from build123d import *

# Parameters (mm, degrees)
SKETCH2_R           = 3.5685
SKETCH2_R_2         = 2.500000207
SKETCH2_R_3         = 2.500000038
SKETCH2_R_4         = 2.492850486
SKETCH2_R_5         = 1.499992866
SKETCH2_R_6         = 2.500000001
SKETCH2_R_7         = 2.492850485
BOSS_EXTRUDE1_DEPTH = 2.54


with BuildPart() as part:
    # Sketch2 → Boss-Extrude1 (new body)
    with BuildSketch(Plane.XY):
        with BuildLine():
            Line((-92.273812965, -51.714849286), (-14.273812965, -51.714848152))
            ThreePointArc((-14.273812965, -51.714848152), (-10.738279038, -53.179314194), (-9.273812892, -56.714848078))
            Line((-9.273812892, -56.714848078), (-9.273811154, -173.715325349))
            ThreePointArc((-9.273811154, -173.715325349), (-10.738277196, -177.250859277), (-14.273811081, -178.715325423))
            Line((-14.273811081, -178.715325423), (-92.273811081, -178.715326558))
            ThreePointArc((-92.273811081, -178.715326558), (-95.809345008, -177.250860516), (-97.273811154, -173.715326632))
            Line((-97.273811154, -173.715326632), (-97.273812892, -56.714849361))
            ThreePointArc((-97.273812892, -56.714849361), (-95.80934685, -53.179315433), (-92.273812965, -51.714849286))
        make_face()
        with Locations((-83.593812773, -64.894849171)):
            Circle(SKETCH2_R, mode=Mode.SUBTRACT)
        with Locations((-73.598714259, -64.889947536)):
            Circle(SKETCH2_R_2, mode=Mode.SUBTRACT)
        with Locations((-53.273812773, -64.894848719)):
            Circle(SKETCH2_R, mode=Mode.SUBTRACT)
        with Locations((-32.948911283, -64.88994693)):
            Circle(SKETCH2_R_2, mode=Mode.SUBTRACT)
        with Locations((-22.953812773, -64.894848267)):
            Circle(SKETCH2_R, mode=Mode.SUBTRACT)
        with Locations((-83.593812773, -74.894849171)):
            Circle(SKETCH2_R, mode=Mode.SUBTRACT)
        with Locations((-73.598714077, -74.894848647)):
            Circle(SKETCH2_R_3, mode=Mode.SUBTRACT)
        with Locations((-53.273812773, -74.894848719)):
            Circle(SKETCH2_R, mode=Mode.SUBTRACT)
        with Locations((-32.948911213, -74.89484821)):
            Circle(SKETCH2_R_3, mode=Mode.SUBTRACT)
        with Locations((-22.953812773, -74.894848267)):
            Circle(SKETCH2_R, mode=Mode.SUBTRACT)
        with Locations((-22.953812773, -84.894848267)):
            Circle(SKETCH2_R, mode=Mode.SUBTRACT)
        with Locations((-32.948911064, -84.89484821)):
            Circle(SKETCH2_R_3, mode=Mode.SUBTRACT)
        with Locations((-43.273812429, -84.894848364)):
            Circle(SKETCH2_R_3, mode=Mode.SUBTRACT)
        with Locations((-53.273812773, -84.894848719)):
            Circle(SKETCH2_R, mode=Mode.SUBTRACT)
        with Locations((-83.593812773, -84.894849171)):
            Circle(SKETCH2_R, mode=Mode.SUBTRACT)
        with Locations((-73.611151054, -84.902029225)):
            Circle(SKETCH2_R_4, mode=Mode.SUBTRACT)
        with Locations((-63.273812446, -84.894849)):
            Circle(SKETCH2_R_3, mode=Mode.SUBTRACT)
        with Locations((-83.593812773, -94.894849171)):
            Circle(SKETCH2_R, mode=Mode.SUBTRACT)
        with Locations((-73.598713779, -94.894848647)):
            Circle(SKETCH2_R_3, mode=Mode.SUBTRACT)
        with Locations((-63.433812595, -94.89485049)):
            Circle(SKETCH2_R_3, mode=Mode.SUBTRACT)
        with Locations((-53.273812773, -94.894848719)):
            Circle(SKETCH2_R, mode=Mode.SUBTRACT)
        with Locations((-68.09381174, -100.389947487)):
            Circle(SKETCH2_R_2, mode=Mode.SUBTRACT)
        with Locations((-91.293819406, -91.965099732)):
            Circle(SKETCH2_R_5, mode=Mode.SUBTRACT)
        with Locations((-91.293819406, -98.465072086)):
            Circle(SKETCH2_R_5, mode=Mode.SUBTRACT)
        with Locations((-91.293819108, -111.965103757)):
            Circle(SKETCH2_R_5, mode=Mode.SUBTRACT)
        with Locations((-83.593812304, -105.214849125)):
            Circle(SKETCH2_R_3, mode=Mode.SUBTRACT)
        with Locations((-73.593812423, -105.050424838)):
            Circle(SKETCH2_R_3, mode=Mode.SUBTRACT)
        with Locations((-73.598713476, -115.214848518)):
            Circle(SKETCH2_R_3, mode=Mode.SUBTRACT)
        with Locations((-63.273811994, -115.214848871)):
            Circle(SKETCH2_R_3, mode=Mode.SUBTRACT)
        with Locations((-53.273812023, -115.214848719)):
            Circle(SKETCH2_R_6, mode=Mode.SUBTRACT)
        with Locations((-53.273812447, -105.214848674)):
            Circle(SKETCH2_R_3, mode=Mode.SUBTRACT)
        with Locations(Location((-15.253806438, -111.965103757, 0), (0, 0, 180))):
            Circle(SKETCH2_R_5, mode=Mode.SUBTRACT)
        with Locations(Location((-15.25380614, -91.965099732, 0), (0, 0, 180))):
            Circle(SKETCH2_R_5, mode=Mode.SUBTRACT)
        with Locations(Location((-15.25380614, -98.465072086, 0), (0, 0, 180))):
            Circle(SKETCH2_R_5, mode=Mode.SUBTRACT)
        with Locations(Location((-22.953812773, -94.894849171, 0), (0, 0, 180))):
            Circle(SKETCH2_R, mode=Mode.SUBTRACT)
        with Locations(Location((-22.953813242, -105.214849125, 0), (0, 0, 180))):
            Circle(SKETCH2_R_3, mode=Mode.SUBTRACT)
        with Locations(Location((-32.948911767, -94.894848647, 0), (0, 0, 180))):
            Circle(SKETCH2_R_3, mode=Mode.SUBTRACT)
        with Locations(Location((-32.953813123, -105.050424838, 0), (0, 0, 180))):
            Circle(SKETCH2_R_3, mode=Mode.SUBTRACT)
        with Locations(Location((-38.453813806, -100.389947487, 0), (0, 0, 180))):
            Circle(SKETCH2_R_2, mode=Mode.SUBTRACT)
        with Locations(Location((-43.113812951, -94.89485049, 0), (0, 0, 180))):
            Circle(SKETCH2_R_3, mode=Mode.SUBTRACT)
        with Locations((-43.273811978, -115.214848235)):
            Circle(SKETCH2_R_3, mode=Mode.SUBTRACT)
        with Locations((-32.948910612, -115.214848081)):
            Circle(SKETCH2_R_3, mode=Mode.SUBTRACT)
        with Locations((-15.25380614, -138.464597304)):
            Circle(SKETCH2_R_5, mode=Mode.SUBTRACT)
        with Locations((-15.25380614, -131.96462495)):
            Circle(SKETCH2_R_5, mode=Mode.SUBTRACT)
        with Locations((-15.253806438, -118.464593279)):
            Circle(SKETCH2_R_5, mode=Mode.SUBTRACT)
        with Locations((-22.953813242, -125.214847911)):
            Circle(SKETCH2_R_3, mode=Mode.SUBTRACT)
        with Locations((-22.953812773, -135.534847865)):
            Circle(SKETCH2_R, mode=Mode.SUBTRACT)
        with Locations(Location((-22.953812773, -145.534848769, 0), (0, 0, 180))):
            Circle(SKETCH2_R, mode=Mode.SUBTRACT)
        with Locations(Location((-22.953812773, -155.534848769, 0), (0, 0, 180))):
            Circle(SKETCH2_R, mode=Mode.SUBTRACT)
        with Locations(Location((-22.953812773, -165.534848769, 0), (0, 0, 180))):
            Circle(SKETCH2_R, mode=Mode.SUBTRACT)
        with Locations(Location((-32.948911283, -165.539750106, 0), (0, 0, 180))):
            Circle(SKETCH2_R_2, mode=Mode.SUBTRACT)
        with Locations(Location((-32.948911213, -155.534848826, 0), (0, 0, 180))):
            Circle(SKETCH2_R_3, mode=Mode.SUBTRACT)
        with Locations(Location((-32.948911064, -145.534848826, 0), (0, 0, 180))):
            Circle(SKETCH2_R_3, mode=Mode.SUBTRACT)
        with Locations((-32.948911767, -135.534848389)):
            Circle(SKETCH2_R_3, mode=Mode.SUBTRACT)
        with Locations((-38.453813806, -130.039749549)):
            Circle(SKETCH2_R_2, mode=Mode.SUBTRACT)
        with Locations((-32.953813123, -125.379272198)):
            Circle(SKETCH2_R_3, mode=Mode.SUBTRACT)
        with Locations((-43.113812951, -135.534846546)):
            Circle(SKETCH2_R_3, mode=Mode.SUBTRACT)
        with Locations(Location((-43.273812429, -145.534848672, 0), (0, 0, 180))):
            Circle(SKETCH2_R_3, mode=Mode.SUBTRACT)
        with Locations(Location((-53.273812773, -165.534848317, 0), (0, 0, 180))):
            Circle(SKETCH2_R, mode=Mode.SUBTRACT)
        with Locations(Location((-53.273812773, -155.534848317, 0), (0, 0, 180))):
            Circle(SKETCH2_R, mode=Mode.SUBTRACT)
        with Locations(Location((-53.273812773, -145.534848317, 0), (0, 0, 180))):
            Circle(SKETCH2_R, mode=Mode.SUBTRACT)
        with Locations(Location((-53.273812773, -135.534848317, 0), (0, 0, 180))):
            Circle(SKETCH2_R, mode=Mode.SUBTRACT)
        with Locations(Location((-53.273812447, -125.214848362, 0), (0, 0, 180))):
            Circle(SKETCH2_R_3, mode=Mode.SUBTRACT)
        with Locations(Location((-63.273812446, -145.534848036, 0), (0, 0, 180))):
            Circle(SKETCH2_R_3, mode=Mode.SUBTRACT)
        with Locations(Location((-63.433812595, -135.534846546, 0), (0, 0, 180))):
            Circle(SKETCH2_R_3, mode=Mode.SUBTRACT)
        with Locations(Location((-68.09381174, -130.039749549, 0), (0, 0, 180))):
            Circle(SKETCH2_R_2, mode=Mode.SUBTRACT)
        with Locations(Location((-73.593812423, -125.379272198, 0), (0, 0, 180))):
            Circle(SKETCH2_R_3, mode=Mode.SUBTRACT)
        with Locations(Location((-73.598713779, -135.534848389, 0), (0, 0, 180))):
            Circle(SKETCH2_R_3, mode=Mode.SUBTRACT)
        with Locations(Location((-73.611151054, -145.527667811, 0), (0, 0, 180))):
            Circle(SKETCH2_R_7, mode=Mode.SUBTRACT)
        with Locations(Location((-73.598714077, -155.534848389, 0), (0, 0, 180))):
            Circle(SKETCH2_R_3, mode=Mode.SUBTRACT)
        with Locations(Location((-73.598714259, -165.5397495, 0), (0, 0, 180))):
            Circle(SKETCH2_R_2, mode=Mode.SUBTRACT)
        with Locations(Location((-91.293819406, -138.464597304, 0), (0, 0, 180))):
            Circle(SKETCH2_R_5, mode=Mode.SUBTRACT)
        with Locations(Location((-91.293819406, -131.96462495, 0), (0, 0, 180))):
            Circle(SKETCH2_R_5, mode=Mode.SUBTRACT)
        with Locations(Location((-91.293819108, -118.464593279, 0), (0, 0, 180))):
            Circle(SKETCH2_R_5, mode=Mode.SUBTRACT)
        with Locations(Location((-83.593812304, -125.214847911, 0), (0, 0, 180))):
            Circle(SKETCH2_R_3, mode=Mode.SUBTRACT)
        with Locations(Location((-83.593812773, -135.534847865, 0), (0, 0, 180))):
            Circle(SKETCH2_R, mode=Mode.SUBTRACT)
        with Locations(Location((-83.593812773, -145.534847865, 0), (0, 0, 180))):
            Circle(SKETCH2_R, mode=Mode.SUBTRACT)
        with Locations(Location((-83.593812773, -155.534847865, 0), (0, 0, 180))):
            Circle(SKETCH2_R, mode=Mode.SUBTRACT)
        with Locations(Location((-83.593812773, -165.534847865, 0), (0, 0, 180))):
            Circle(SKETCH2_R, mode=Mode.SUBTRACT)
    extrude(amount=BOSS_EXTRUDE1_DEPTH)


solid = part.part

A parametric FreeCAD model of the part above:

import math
import FreeCAD as App
import Part
import Sketcher
Q = App.Units.Quantity

doc = App.newDocument("Part")
body = doc.addObject("PartDesign::Body", "Body")

# Sketch on XY plane
sketch1 = body.newObject("Sketcher::SketchObject", "Sketch")
sketch1.AttachmentSupport = (doc.getObject("XY_Plane"), [""])
sketch1.MapMode = "FlatFace"
sketch1.addGeometry(Part.LineSegment(App.Vector(-14.3, -51.7, 0), App.Vector(-92.3, -51.7, 0)), False)
sketch1.addGeometry(Part.ArcOfCircle(Part.Circle(App.Vector(-92.3, -56.7, 0), App.Vector(0, 0, 1), 5), math.radians(90), math.radians(180)), False)
sketch1.addGeometry(Part.LineSegment(App.Vector(-97.3, -56.7, 0), App.Vector(-97.3, -173.7, 0)), False)
sketch1.addGeometry(Part.ArcOfCircle(Part.Circle(App.Vector(-92.3, -173.7, 0), App.Vector(0, 0, 1), 5), math.radians(-180), math.radians(-90)), False)
sketch1.addGeometry(Part.LineSegment(App.Vector(-92.3, -178.7, 0), App.Vector(-14.3, -178.7, 0)), False)
sketch1.addGeometry(Part.ArcOfCircle(Part.Circle(App.Vector(-14.3, -173.7, 0), App.Vector(0, 0, 1), 5), math.radians(-90), math.radians(0)), False)
sketch1.addGeometry(Part.LineSegment(App.Vector(-9.3, -173.7, 0), App.Vector(-9.3, -56.7, 0)), False)
sketch1.addGeometry(Part.ArcOfCircle(Part.Circle(App.Vector(-14.3, -56.7, 0), App.Vector(0, 0, 1), 5), math.radians(0), math.radians(90)), False)
sketch1.addGeometry(Part.Circle(App.Vector(-23, -165.5, 0), App.Vector(0, 0, 1), 3.6), False)
sketch1.addGeometry(Part.Circle(App.Vector(-32.9, -165.5, 0), App.Vector(0, 0, 1), 2.5), False)
sketch1.addGeometry(Part.Circle(App.Vector(-23, -155.5, 0), App.Vector(0, 0, 1), 3.6), False)
sketch1.addGeometry(Part.Circle(App.Vector(-23, -145.5, 0), App.Vector(0, 0, 1), 3.6), False)
sketch1.addGeometry(Part.Circle(App.Vector(-32.9, -155.5, 0), App.Vector(0, 0, 1), 2.5), False)
sketch1.addGeometry(Part.Circle(App.Vector(-32.9, -145.5, 0), App.Vector(0, 0, 1), 2.5), False)
sketch1.addGeometry(Part.Circle(App.Vector(-43.3, -145.5, 0), App.Vector(0, 0, 1), 2.5), False)
sketch1.addGeometry(Part.Circle(App.Vector(-15.3, -138.5, 0), App.Vector(0, 0, 1), 1.5), False)
sketch1.addGeometry(Part.Circle(App.Vector(-23, -135.5, 0), App.Vector(0, 0, 1), 3.6), False)
sketch1.addGeometry(Part.Circle(App.Vector(-15.3, -132, 0), App.Vector(0, 0, 1), 1.5), False)
sketch1.addGeometry(Part.Circle(App.Vector(-32.9, -135.5, 0), App.Vector(0, 0, 1), 2.5), False)
sketch1.addGeometry(Part.Circle(App.Vector(-23, -125.2, 0), App.Vector(0, 0, 1), 2.5), False)
sketch1.addGeometry(Part.Circle(App.Vector(-15.3, -118.5, 0), App.Vector(0, 0, 1), 1.5), False)
sketch1.addGeometry(Part.Circle(App.Vector(-33, -125.4, 0), App.Vector(0, 0, 1), 2.5), False)
sketch1.addGeometry(Part.Circle(App.Vector(-43.1, -135.5, 0), App.Vector(0, 0, 1), 2.5), False)
sketch1.addGeometry(Part.Circle(App.Vector(-38.5, -130, 0), App.Vector(0, 0, 1), 2.5), False)
sketch1.addGeometry(Part.Circle(App.Vector(-53.3, -125.2, 0), App.Vector(0, 0, 1), 2.5), False)
sketch1.addGeometry(Part.Circle(App.Vector(-53.3, -115.2, 0), App.Vector(0, 0, 1), 2.5), False)
sketch1.addGeometry(Part.Circle(App.Vector(-53.3, -165.5, 0), App.Vector(0, 0, 1), 3.6), False)
sketch1.addGeometry(Part.Circle(App.Vector(-53.3, -155.5, 0), App.Vector(0, 0, 1), 3.6), False)
sketch1.addGeometry(Part.Circle(App.Vector(-53.3, -145.5, 0), App.Vector(0, 0, 1), 3.6), False)
sketch1.addGeometry(Part.Circle(App.Vector(-63.3, -145.5, 0), App.Vector(0, 0, 1), 2.5), False)
sketch1.addGeometry(Part.Circle(App.Vector(-73.6, -165.5, 0), App.Vector(0, 0, 1), 2.5), False)
sketch1.addGeometry(Part.Circle(App.Vector(-83.6, -165.5, 0), App.Vector(0, 0, 1), 3.6), False)
sketch1.addGeometry(Part.Circle(App.Vector(-73.6, -155.5, 0), App.Vector(0, 0, 1), 2.5), False)
sketch1.addGeometry(Part.Circle(App.Vector(-73.6, -145.5, 0), App.Vector(0, 0, 1), 2.5), False)
sketch1.addGeometry(Part.Circle(App.Vector(-83.6, -155.5, 0), App.Vector(0, 0, 1), 3.6), False)
sketch1.addGeometry(Part.Circle(App.Vector(-83.6, -145.5, 0), App.Vector(0, 0, 1), 3.6), False)
sketch1.addGeometry(Part.Circle(App.Vector(-53.3, -135.5, 0), App.Vector(0, 0, 1), 3.6), False)
sketch1.addGeometry(Part.Circle(App.Vector(-63.4, -135.5, 0), App.Vector(0, 0, 1), 2.5), False)
sketch1.addGeometry(Part.Circle(App.Vector(-68.1, -130, 0), App.Vector(0, 0, 1), 2.5), False)
sketch1.addGeometry(Part.Circle(App.Vector(-63.3, -115.2, 0), App.Vector(0, 0, 1), 2.5), False)
sketch1.addGeometry(Part.Circle(App.Vector(-73.6, -135.5, 0), App.Vector(0, 0, 1), 2.5), False)
sketch1.addGeometry(Part.Circle(App.Vector(-83.6, -135.5, 0), App.Vector(0, 0, 1), 3.6), False)
sketch1.addGeometry(Part.Circle(App.Vector(-91.3, -138.5, 0), App.Vector(0, 0, 1), 1.5), False)
sketch1.addGeometry(Part.Circle(App.Vector(-91.3, -132, 0), App.Vector(0, 0, 1), 1.5), False)
sketch1.addGeometry(Part.Circle(App.Vector(-73.6, -125.4, 0), App.Vector(0, 0, 1), 2.5), False)
sketch1.addGeometry(Part.Circle(App.Vector(-83.6, -125.2, 0), App.Vector(0, 0, 1), 2.5), False)
sketch1.addGeometry(Part.Circle(App.Vector(-91.3, -118.5, 0), App.Vector(0, 0, 1), 1.5), False)
sketch1.addGeometry(Part.Circle(App.Vector(-15.3, -112, 0), App.Vector(0, 0, 1), 1.5), False)
sketch1.addGeometry(Part.Circle(App.Vector(-23, -105.2, 0), App.Vector(0, 0, 1), 2.5), False)
sketch1.addGeometry(Part.Circle(App.Vector(-32.9, -115.2, 0), App.Vector(0, 0, 1), 2.5), False)
sketch1.addGeometry(Part.Circle(App.Vector(-33, -105.1, 0), App.Vector(0, 0, 1), 2.5), False)
sketch1.addGeometry(Part.Circle(App.Vector(-15.3, -98.5, 0), App.Vector(0, 0, 1), 1.5), False)
sketch1.addGeometry(Part.Circle(App.Vector(-15.3, -92, 0), App.Vector(0, 0, 1), 1.5), False)
sketch1.addGeometry(Part.Circle(App.Vector(-23, -94.9, 0), App.Vector(0, 0, 1), 3.6), False)
sketch1.addGeometry(Part.Circle(App.Vector(-32.9, -94.9, 0), App.Vector(0, 0, 1), 2.5), False)
sketch1.addGeometry(Part.Circle(App.Vector(-43.3, -115.2, 0), App.Vector(0, 0, 1), 2.5), False)
sketch1.addGeometry(Part.Circle(App.Vector(-53.3, -105.2, 0), App.Vector(0, 0, 1), 2.5), False)
sketch1.addGeometry(Part.Circle(App.Vector(-38.5, -100.4, 0), App.Vector(0, 0, 1), 2.5), False)
sketch1.addGeometry(Part.Circle(App.Vector(-43.1, -94.9, 0), App.Vector(0, 0, 1), 2.5), False)
sketch1.addGeometry(Part.Circle(App.Vector(-23, -84.9, 0), App.Vector(0, 0, 1), 3.6), False)
sketch1.addGeometry(Part.Circle(App.Vector(-23, -74.9, 0), App.Vector(0, 0, 1), 3.6), False)
sketch1.addGeometry(Part.Circle(App.Vector(-32.9, -84.9, 0), App.Vector(0, 0, 1), 2.5), False)
sketch1.addGeometry(Part.Circle(App.Vector(-32.9, -74.9, 0), App.Vector(0, 0, 1), 2.5), False)
sketch1.addGeometry(Part.Circle(App.Vector(-23, -64.9, 0), App.Vector(0, 0, 1), 3.6), False)
sketch1.addGeometry(Part.Circle(App.Vector(-32.9, -64.9, 0), App.Vector(0, 0, 1), 2.5), False)
sketch1.addGeometry(Part.Circle(App.Vector(-43.3, -84.9, 0), App.Vector(0, 0, 1), 2.5), False)
sketch1.addGeometry(Part.Circle(App.Vector(-53.3, -94.9, 0), App.Vector(0, 0, 1), 3.6), False)
sketch1.addGeometry(Part.Circle(App.Vector(-68.1, -100.4, 0), App.Vector(0, 0, 1), 2.5), False)
sketch1.addGeometry(Part.Circle(App.Vector(-63.4, -94.9, 0), App.Vector(0, 0, 1), 2.5), False)
sketch1.addGeometry(Part.Circle(App.Vector(-73.6, -115.2, 0), App.Vector(0, 0, 1), 2.5), False)
sketch1.addGeometry(Part.Circle(App.Vector(-73.6, -105.1, 0), App.Vector(0, 0, 1), 2.5), False)
sketch1.addGeometry(Part.Circle(App.Vector(-91.3, -112, 0), App.Vector(0, 0, 1), 1.5), False)
sketch1.addGeometry(Part.Circle(App.Vector(-83.6, -105.2, 0), App.Vector(0, 0, 1), 2.5), False)
sketch1.addGeometry(Part.Circle(App.Vector(-73.6, -94.9, 0), App.Vector(0, 0, 1), 2.5), False)
sketch1.addGeometry(Part.Circle(App.Vector(-91.3, -98.5, 0), App.Vector(0, 0, 1), 1.5), False)
sketch1.addGeometry(Part.Circle(App.Vector(-83.6, -94.9, 0), App.Vector(0, 0, 1), 3.6), False)
sketch1.addGeometry(Part.Circle(App.Vector(-91.3, -92, 0), App.Vector(0, 0, 1), 1.5), False)
sketch1.addGeometry(Part.Circle(App.Vector(-53.3, -84.9, 0), App.Vector(0, 0, 1), 3.6), False)
sketch1.addGeometry(Part.Circle(App.Vector(-53.3, -74.9, 0), App.Vector(0, 0, 1), 3.6), False)
sketch1.addGeometry(Part.Circle(App.Vector(-63.3, -84.9, 0), App.Vector(0, 0, 1), 2.5), False)
sketch1.addGeometry(Part.Circle(App.Vector(-53.3, -64.9, 0), App.Vector(0, 0, 1), 3.6), False)
sketch1.addGeometry(Part.Circle(App.Vector(-73.6, -84.9, 0), App.Vector(0, 0, 1), 2.5), False)
sketch1.addGeometry(Part.Circle(App.Vector(-73.6, -74.9, 0), App.Vector(0, 0, 1), 2.5), False)
sketch1.addGeometry(Part.Circle(App.Vector(-83.6, -84.9, 0), App.Vector(0, 0, 1), 3.6), False)
sketch1.addGeometry(Part.Circle(App.Vector(-83.6, -74.9, 0), App.Vector(0, 0, 1), 3.6), False)
sketch1.addGeometry(Part.Circle(App.Vector(-73.6, -64.9, 0), App.Vector(0, 0, 1), 2.5), False)
sketch1.addGeometry(Part.Circle(App.Vector(-83.6, -64.9, 0), App.Vector(0, 0, 1), 3.6), False)
sketch1.addConstraint(Sketcher.Constraint("Tangent", 0, 2, 1, 1))
sketch1.addConstraint(Sketcher.Constraint("Tangent", 1, 2, 2, 1))
sketch1.addConstraint(Sketcher.Constraint("Tangent", 2, 2, 3, 1))
sketch1.addConstraint(Sketcher.Constraint("Tangent", 3, 2, 4, 1))
sketch1.addConstraint(Sketcher.Constraint("Tangent", 4, 2, 5, 1))
sketch1.addConstraint(Sketcher.Constraint("Tangent", 5, 2, 6, 1))
sketch1.addConstraint(Sketcher.Constraint("Tangent", 6, 2, 7, 1))
sketch1.addConstraint(Sketcher.Constraint("Tangent", 7, 2, 0, 1))
sketch1.addConstraint(Sketcher.Constraint("Horizontal", 0))
sketch1.addConstraint(Sketcher.Constraint("Vertical", 2))
sketch1.addConstraint(Sketcher.Constraint("Horizontal", 4))
sketch1.addConstraint(Sketcher.Constraint("Vertical", 6))
sketch1.addConstraint(Sketcher.Constraint("Equal", 1, 3))
sketch1.addConstraint(Sketcher.Constraint("Equal", 3, 5))
sketch1.addConstraint(Sketcher.Constraint("Equal", 5, 7))
sketch1.addConstraint(Sketcher.Constraint("Equal", 8, 10))
sketch1.addConstraint(Sketcher.Constraint("Equal", 10, 11))
sketch1.addConstraint(Sketcher.Constraint("Equal", 9, 12))
sketch1.addConstraint(Sketcher.Constraint("Equal", 12, 13))
sketch1.addConstraint(Sketcher.Constraint("Equal", 13, 14))
sketch1.addConstraint(Sketcher.Constraint("Equal", 11, 16))
sketch1.addConstraint(Sketcher.Constraint("Equal", 15, 17))
sketch1.addConstraint(Sketcher.Constraint("Equal", 14, 18))
sketch1.addConstraint(Sketcher.Constraint("Equal", 18, 19))
sketch1.addConstraint(Sketcher.Constraint("Equal", 17, 20))
sketch1.addConstraint(Sketcher.Constraint("Equal", 19, 21))
sketch1.addConstraint(Sketcher.Constraint("Equal", 21, 22))
sketch1.addConstraint(Sketcher.Constraint("Equal", 22, 23))
sketch1.addConstraint(Sketcher.Constraint("Equal", 23, 24))
sketch1.addConstraint(Sketcher.Constraint("Equal", 24, 25))
sketch1.addConstraint(Sketcher.Constraint("Equal", 16, 26))
sketch1.addConstraint(Sketcher.Constraint("Equal", 26, 27))
sketch1.addConstraint(Sketcher.Constraint("Equal", 27, 28))
sketch1.addConstraint(Sketcher.Constraint("Equal", 25, 29))
sketch1.addConstraint(Sketcher.Constraint("Equal", 29, 30))
sketch1.addConstraint(Sketcher.Constraint("Equal", 28, 31))
sketch1.addConstraint(Sketcher.Constraint("Equal", 30, 32))
sketch1.addConstraint(Sketcher.Constraint("Equal", 31, 34))
sketch1.addConstraint(Sketcher.Constraint("Equal", 34, 35))
sketch1.addConstraint(Sketcher.Constraint("Equal", 35, 36))
sketch1.addConstraint(Sketcher.Constraint("Equal", 32, 37))
sketch1.addConstraint(Sketcher.Constraint("Equal", 37, 38))
sketch1.addConstraint(Sketcher.Constraint("Equal", 38, 39))
sketch1.addConstraint(Sketcher.Constraint("Equal", 39, 40))
sketch1.addConstraint(Sketcher.Constraint("Equal", 36, 41))
sketch1.addConstraint(Sketcher.Constraint("Equal", 20, 42))
sketch1.addConstraint(Sketcher.Constraint("Equal", 42, 43))
sketch1.addConstraint(Sketcher.Constraint("Equal", 40, 44))
sketch1.addConstraint(Sketcher.Constraint("Equal", 44, 45))
sketch1.addConstraint(Sketcher.Constraint("Equal", 43, 46))
sketch1.addConstraint(Sketcher.Constraint("Equal", 46, 47))
sketch1.addConstraint(Sketcher.Constraint("Equal", 45, 48))
sketch1.addConstraint(Sketcher.Constraint("Equal", 48, 49))
sketch1.addConstraint(Sketcher.Constraint("Equal", 49, 50))
sketch1.addConstraint(Sketcher.Constraint("Equal", 47, 51))
sketch1.addConstraint(Sketcher.Constraint("Equal", 51, 52))
sketch1.addConstraint(Sketcher.Constraint("Equal", 41, 53))
sketch1.addConstraint(Sketcher.Constraint("Equal", 50, 54))
sketch1.addConstraint(Sketcher.Constraint("Equal", 54, 55))
sketch1.addConstraint(Sketcher.Constraint("Equal", 55, 56))
sketch1.addConstraint(Sketcher.Constraint("Equal", 56, 57))
sketch1.addConstraint(Sketcher.Constraint("Equal", 57, 58))
sketch1.addConstraint(Sketcher.Constraint("Equal", 53, 59))
sketch1.addConstraint(Sketcher.Constraint("Equal", 59, 60))
sketch1.addConstraint(Sketcher.Constraint("Equal", 58, 61))
sketch1.addConstraint(Sketcher.Constraint("Equal", 61, 62))
sketch1.addConstraint(Sketcher.Constraint("Equal", 60, 63))
sketch1.addConstraint(Sketcher.Constraint("Equal", 62, 64))
sketch1.addConstraint(Sketcher.Constraint("Equal", 64, 65))
sketch1.addConstraint(Sketcher.Constraint("Equal", 63, 66))
sketch1.addConstraint(Sketcher.Constraint("Equal", 65, 67))
sketch1.addConstraint(Sketcher.Constraint("Equal", 67, 68))
sketch1.addConstraint(Sketcher.Constraint("Equal", 68, 69))
sketch1.addConstraint(Sketcher.Constraint("Equal", 69, 70))
sketch1.addConstraint(Sketcher.Constraint("Equal", 52, 71))
sketch1.addConstraint(Sketcher.Constraint("Equal", 70, 72))
sketch1.addConstraint(Sketcher.Constraint("Equal", 72, 73))
sketch1.addConstraint(Sketcher.Constraint("Equal", 71, 74))
sketch1.addConstraint(Sketcher.Constraint("Equal", 66, 75))
sketch1.addConstraint(Sketcher.Constraint("Equal", 74, 76))
sketch1.addConstraint(Sketcher.Constraint("Equal", 75, 77))
sketch1.addConstraint(Sketcher.Constraint("Equal", 77, 78))
sketch1.addConstraint(Sketcher.Constraint("Equal", 73, 79))
sketch1.addConstraint(Sketcher.Constraint("Equal", 78, 80))
sketch1.addConstraint(Sketcher.Constraint("Equal", 33, 81))
sketch1.addConstraint(Sketcher.Constraint("Equal", 79, 82))
sketch1.addConstraint(Sketcher.Constraint("Equal", 80, 83))
sketch1.addConstraint(Sketcher.Constraint("Equal", 83, 84))
sketch1.addConstraint(Sketcher.Constraint("Equal", 82, 85))
sketch1.addConstraint(Sketcher.Constraint("Equal", 84, 86))
sketch1.addConstraint(Sketcher.Constraint("Horizontal", 10, 3, 12, 3))
sketch1.addConstraint(Sketcher.Constraint("Horizontal", 11, 3, 13, 3))
sketch1.addConstraint(Sketcher.Constraint("Horizontal", 13, 3, 14, 3))
sketch1.addConstraint(Sketcher.Constraint("Horizontal", 16, 3, 18, 3))
sketch1.addConstraint(Sketcher.Constraint("Horizontal", 18, 3, 22, 3))
sketch1.addConstraint(Sketcher.Constraint("Horizontal", 19, 3, 24, 3))
sketch1.addConstraint(Sketcher.Constraint("Horizontal", 8, 3, 26, 3))
sketch1.addConstraint(Sketcher.Constraint("Horizontal", 12, 3, 27, 3))
sketch1.addConstraint(Sketcher.Constraint("Horizontal", 14, 3, 28, 3))
sketch1.addConstraint(Sketcher.Constraint("Horizontal", 28, 3, 29, 3))
sketch1.addConstraint(Sketcher.Constraint("Horizontal", 9, 3, 30, 3))
sketch1.addConstraint(Sketcher.Constraint("Horizontal", 26, 3, 31, 3))
sketch1.addConstraint(Sketcher.Constraint("Horizontal", 27, 3, 32, 3))
sketch1.addConstraint(Sketcher.Constraint("Horizontal", 32, 3, 34, 3))
sketch1.addConstraint(Sketcher.Constraint("Horizontal", 29, 3, 35, 3))
sketch1.addConstraint(Sketcher.Constraint("Horizontal", 22, 3, 36, 3))
sketch1.addConstraint(Sketcher.Constraint("Horizontal", 36, 3, 37, 3))
sketch1.addConstraint(Sketcher.Constraint("Horizontal", 23, 3, 38, 3))
sketch1.addConstraint(Sketcher.Constraint("Horizontal", 25, 3, 39, 3))
sketch1.addConstraint(Sketcher.Constraint("Horizontal", 37, 3, 40, 3))
sketch1.addConstraint(Sketcher.Constraint("Horizontal", 40, 3, 41, 3))
sketch1.addConstraint(Sketcher.Constraint("Horizontal", 15, 3, 42, 3))
sketch1.addConstraint(Sketcher.Constraint("Horizontal", 17, 3, 43, 3))
sketch1.addConstraint(Sketcher.Constraint("Horizontal", 21, 3, 44, 3))
sketch1.addConstraint(Sketcher.Constraint("Horizontal", 24, 3, 45, 3))
sketch1.addConstraint(Sketcher.Constraint("Horizontal", 20, 3, 46, 3))
sketch1.addConstraint(Sketcher.Constraint("Horizontal", 39, 3, 49, 3))
sketch1.addConstraint(Sketcher.Constraint("Horizontal", 53, 3, 54, 3))
sketch1.addConstraint(Sketcher.Constraint("Horizontal", 49, 3, 55, 3))
sketch1.addConstraint(Sketcher.Constraint("Horizontal", 48, 3, 56, 3))
sketch1.addConstraint(Sketcher.Constraint("Horizontal", 54, 3, 58, 3))
sketch1.addConstraint(Sketcher.Constraint("Horizontal", 59, 3, 61, 3))
sketch1.addConstraint(Sketcher.Constraint("Horizontal", 60, 3, 62, 3))
sketch1.addConstraint(Sketcher.Constraint("Horizontal", 61, 3, 65, 3))
sketch1.addConstraint(Sketcher.Constraint("Horizontal", 58, 3, 66, 3))
sketch1.addConstraint(Sketcher.Constraint("Horizontal", 57, 3, 67, 3))
sketch1.addConstraint(Sketcher.Constraint("Horizontal", 66, 3, 68, 3))
sketch1.addConstraint(Sketcher.Constraint("Horizontal", 55, 3, 69, 3))
sketch1.addConstraint(Sketcher.Constraint("Horizontal", 50, 3, 70, 3))
sketch1.addConstraint(Sketcher.Constraint("Horizontal", 47, 3, 71, 3))
sketch1.addConstraint(Sketcher.Constraint("Horizontal", 56, 3, 72, 3))
sketch1.addConstraint(Sketcher.Constraint("Horizontal", 68, 3, 73, 3))
sketch1.addConstraint(Sketcher.Constraint("Horizontal", 51, 3, 74, 3))
sketch1.addConstraint(Sketcher.Constraint("Horizontal", 73, 3, 75, 3))
sketch1.addConstraint(Sketcher.Constraint("Horizontal", 52, 3, 76, 3))
sketch1.addConstraint(Sketcher.Constraint("Horizontal", 65, 3, 77, 3))
sketch1.addConstraint(Sketcher.Constraint("Horizontal", 62, 3, 78, 3))
sketch1.addConstraint(Sketcher.Constraint("Horizontal", 77, 3, 79, 3))
sketch1.addConstraint(Sketcher.Constraint("Horizontal", 63, 3, 80, 3))
sketch1.addConstraint(Sketcher.Constraint("Horizontal", 78, 3, 82, 3))
sketch1.addConstraint(Sketcher.Constraint("Horizontal", 79, 3, 83, 3))
sketch1.addConstraint(Sketcher.Constraint("Horizontal", 82, 3, 84, 3))
sketch1.addConstraint(Sketcher.Constraint("Horizontal", 64, 3, 85, 3))
sketch1.addConstraint(Sketcher.Constraint("Horizontal", 80, 3, 86, 3))
sketch1.addConstraint(Sketcher.Constraint("Vertical", 8, 3, 10, 3))
sketch1.addConstraint(Sketcher.Constraint("Vertical", 10, 3, 11, 3))
sketch1.addConstraint(Sketcher.Constraint("Vertical", 9, 3, 12, 3))
sketch1.addConstraint(Sketcher.Constraint("Vertical", 12, 3, 13, 3))
sketch1.addConstraint(Sketcher.Constraint("Vertical", 11, 3, 16, 3))
sketch1.addConstraint(Sketcher.Constraint("Vertical", 15, 3, 17, 3))
sketch1.addConstraint(Sketcher.Constraint("Vertical", 13, 3, 18, 3))
sketch1.addConstraint(Sketcher.Constraint("Vertical", 16, 3, 19, 3))
sketch1.addConstraint(Sketcher.Constraint("Vertical", 17, 3, 20, 3))
sketch1.addConstraint(Sketcher.Constraint("Vertical", 24, 3, 25, 3))
sketch1.addConstraint(Sketcher.Constraint("Vertical", 25, 3, 26, 3))
sketch1.addConstraint(Sketcher.Constraint("Vertical", 26, 3, 27, 3))
sketch1.addConstraint(Sketcher.Constraint("Vertical", 27, 3, 28, 3))
sketch1.addConstraint(Sketcher.Constraint("Vertical", 30, 3, 32, 3))
sketch1.addConstraint(Sketcher.Constraint("Vertical", 31, 3, 34, 3))
sketch1.addConstraint(Sketcher.Constraint("Vertical", 34, 3, 35, 3))
sketch1.addConstraint(Sketcher.Constraint("Vertical", 28, 3, 36, 3))
sketch1.addConstraint(Sketcher.Constraint("Vertical", 29, 3, 39, 3))
sketch1.addConstraint(Sketcher.Constraint("Vertical", 32, 3, 40, 3))
sketch1.addConstraint(Sketcher.Constraint("Vertical", 35, 3, 41, 3))
sketch1.addConstraint(Sketcher.Constraint("Vertical", 42, 3, 43, 3))
sketch1.addConstraint(Sketcher.Constraint("Vertical", 41, 3, 45, 3))
sketch1.addConstraint(Sketcher.Constraint("Vertical", 43, 3, 46, 3))
sketch1.addConstraint(Sketcher.Constraint("Vertical", 20, 3, 47, 3))
sketch1.addConstraint(Sketcher.Constraint("Vertical", 19, 3, 48, 3))
sketch1.addConstraint(Sketcher.Constraint("Vertical", 18, 3, 49, 3))
sketch1.addConstraint(Sketcher.Constraint("Vertical", 21, 3, 50, 3))
sketch1.addConstraint(Sketcher.Constraint("Vertical", 47, 3, 51, 3))
sketch1.addConstraint(Sketcher.Constraint("Vertical", 51, 3, 52, 3))
sketch1.addConstraint(Sketcher.Constraint("Vertical", 48, 3, 53, 3))
sketch1.addConstraint(Sketcher.Constraint("Vertical", 49, 3, 54, 3))
sketch1.addConstraint(Sketcher.Constraint("Vertical", 14, 3, 55, 3))
sketch1.addConstraint(Sketcher.Constraint("Vertical", 36, 3, 56, 3))
sketch1.addConstraint(Sketcher.Constraint("Vertical", 23, 3, 57, 3))
sketch1.addConstraint(Sketcher.Constraint("Vertical", 22, 3, 58, 3))
sketch1.addConstraint(Sketcher.Constraint("Vertical", 53, 3, 59, 3))
sketch1.addConstraint(Sketcher.Constraint("Vertical", 59, 3, 60, 3))
sketch1.addConstraint(Sketcher.Constraint("Vertical", 54, 3, 61, 3))
sketch1.addConstraint(Sketcher.Constraint("Vertical", 61, 3, 62, 3))
sketch1.addConstraint(Sketcher.Constraint("Vertical", 60, 3, 63, 3))
sketch1.addConstraint(Sketcher.Constraint("Vertical", 62, 3, 64, 3))
sketch1.addConstraint(Sketcher.Constraint("Vertical", 55, 3, 65, 3))
sketch1.addConstraint(Sketcher.Constraint("Vertical", 56, 3, 66, 3))
sketch1.addConstraint(Sketcher.Constraint("Vertical", 38, 3, 67, 3))
sketch1.addConstraint(Sketcher.Constraint("Vertical", 37, 3, 68, 3))
sketch1.addConstraint(Sketcher.Constraint("Vertical", 40, 3, 69, 3))
sketch1.addConstraint(Sketcher.Constraint("Vertical", 44, 3, 70, 3))
sketch1.addConstraint(Sketcher.Constraint("Vertical", 46, 3, 71, 3))
sketch1.addConstraint(Sketcher.Constraint("Vertical", 45, 3, 72, 3))
sketch1.addConstraint(Sketcher.Constraint("Vertical", 69, 3, 73, 3))
sketch1.addConstraint(Sketcher.Constraint("Vertical", 71, 3, 74, 3))
sketch1.addConstraint(Sketcher.Constraint("Vertical", 72, 3, 75, 3))
sketch1.addConstraint(Sketcher.Constraint("Vertical", 74, 3, 76, 3))
sketch1.addConstraint(Sketcher.Constraint("Vertical", 66, 3, 77, 3))
sketch1.addConstraint(Sketcher.Constraint("Vertical", 77, 3, 78, 3))
sketch1.addConstraint(Sketcher.Constraint("Vertical", 39, 3, 79, 3))
sketch1.addConstraint(Sketcher.Constraint("Vertical", 78, 3, 80, 3))
sketch1.addConstraint(Sketcher.Constraint("Vertical", 33, 3, 81, 3))
sketch1.addConstraint(Sketcher.Constraint("Vertical", 73, 3, 82, 3))
sketch1.addConstraint(Sketcher.Constraint("Vertical", 75, 3, 83, 3))
sketch1.addConstraint(Sketcher.Constraint("Vertical", 83, 3, 84, 3))
sketch1.addConstraint(Sketcher.Constraint("Vertical", 82, 3, 85, 3))
sketch1.addConstraint(Sketcher.Constraint("Vertical", 84, 3, 86, 3))
sketch1.addConstraint(Sketcher.Constraint("Diameter", 9, Q("5 mm")))
sketch1.addConstraint(Sketcher.Constraint("Radius", 1, Q("5 mm")))
sketch1.addConstraint(Sketcher.Constraint("DistanceX", 0, 2, 0, 1, Q("78 mm")))
sketch1.addConstraint(Sketcher.Constraint("Diameter", 8, Q("7.137 mm")))
sketch1.addConstraint(Sketcher.Constraint("Diameter", 33, Q("4.985701 mm")))
sketch1.addConstraint(Sketcher.Constraint("Diameter", 15, Q("2.999986 mm")))
sketch1.addConstraint(Sketcher.Constraint("DistanceY", 52, 3, -1, 1, Q("91.9651 mm")))
sketch1.addConstraint(Sketcher.Constraint("DistanceY", 2, 2, 2, 1, Q("117.000477 mm")))
sketch1.addConstraint(Sketcher.Constraint("DistanceY", 1, 3, -1, 1, Q("56.714849 mm")))
sketch1.addConstraint(Sketcher.Constraint("DistanceX", 3, 3, -1, 1, Q("92.273811 mm")))
sketch1.addConstraint(Sketcher.Constraint("DistanceY", 8, 3, -1, 1, Q("165.534849 mm")))
sketch1.addConstraint(Sketcher.Constraint("DistanceX", 9, 3, -1, 1, Q("32.948911 mm")))
sketch1.addConstraint(Sketcher.Constraint("DistanceY", 9, 3, -1, 1, Q("165.53975 mm")))
sketch1.addConstraint(Sketcher.Constraint("DistanceY", 10, 3, -1, 1, Q("155.534849 mm")))
sketch1.addConstraint(Sketcher.Constraint("DistanceY", 11, 3, -1, 1, Q("145.534849 mm")))
sketch1.addConstraint(Sketcher.Constraint("DistanceY", 18, 3, -1, 1, Q("135.534848 mm")))
sketch1.addConstraint(Sketcher.Constraint("DistanceY", 23, 3, -1, 1, Q("130.03975 mm")))
sketch1.addConstraint(Sketcher.Constraint("DistanceY", 24, 3, -1, 1, Q("125.214848 mm")))
sketch1.addConstraint(Sketcher.Constraint("DistanceY", 25, 3, -1, 1, Q("115.214849 mm")))
sketch1.addConstraint(Sketcher.Constraint("DistanceX", 33, 3, -1, 1, Q("73.611151 mm")))
sketch1.addConstraint(Sketcher.Constraint("DistanceX", 38, 3, -1, 1, Q("68.093812 mm")))
sketch1.addConstraint(Sketcher.Constraint("DistanceX", 39, 3, -1, 1, Q("63.273812 mm")))
sketch1.addConstraint(Sketcher.Constraint("DistanceX", 42, 3, -1, 1, Q("91.293819 mm")))
sketch1.addConstraint(Sketcher.Constraint("DistanceY", 48, 3, -1, 1, Q("105.214849 mm")))
sketch1.addConstraint(Sketcher.Constraint("DistanceY", 53, 3, -1, 1, Q("94.894849 mm")))
sketch1.addConstraint(Sketcher.Constraint("DistanceX", 55, 3, -1, 1, Q("43.273812 mm")))
sketch1.addConstraint(Sketcher.Constraint("DistanceY", 59, 3, -1, 1, Q("84.894848 mm")))
sketch1.addConstraint(Sketcher.Constraint("DistanceY", 60, 3, -1, 1, Q("74.894848 mm")))
sketch1.addConstraint(Sketcher.Constraint("DistanceY", 63, 3, -1, 1, Q("64.894848 mm")))
sketch1.addConstraint(Sketcher.Constraint("DistanceY", 81, 3, -1, 1, Q("84.902029 mm")))
sketch1.addConstraint(Sketcher.Constraint("DistanceX", 8, 3, -1, 1, Q("22.953813 mm")))
sketch1.addConstraint(Sketcher.Constraint("DistanceX", 15, 3, -1, 1, Q("15.253806 mm")))
sketch1.addConstraint(Sketcher.Constraint("DistanceY", 15, 3, -1, 1, Q("138.464597 mm")))
sketch1.addConstraint(Sketcher.Constraint("DistanceY", 17, 3, -1, 1, Q("131.964625 mm")))
sketch1.addConstraint(Sketcher.Constraint("DistanceY", 20, 3, -1, 1, Q("118.464593 mm")))
sketch1.addConstraint(Sketcher.Constraint("DistanceX", 21, 3, -1, 1, Q("32.953813 mm")))
sketch1.addConstraint(Sketcher.Constraint("DistanceY", 21, 3, -1, 1, Q("125.379272 mm")))
sketch1.addConstraint(Sketcher.Constraint("DistanceX", 22, 3, -1, 1, Q("43.113813 mm")))
sketch1.addConstraint(Sketcher.Constraint("DistanceX", 23, 3, -1, 1, Q("38.453814 mm")))
sketch1.addConstraint(Sketcher.Constraint("DistanceX", 24, 3, -1, 1, Q("53.273812 mm")))
sketch1.addConstraint(Sketcher.Constraint("DistanceX", 30, 3, -1, 1, Q("73.598714 mm")))
sketch1.addConstraint(Sketcher.Constraint("DistanceX", 31, 3, -1, 1, Q("83.593813 mm")))
sketch1.addConstraint(Sketcher.Constraint("DistanceY", 33, 3, -1, 1, Q("145.527668 mm")))
sketch1.addConstraint(Sketcher.Constraint("DistanceX", 37, 3, -1, 1, Q("63.433813 mm")))
sketch1.addConstraint(Sketcher.Constraint("DistanceX", 44, 3, -1, 1, Q("73.593812 mm")))
sketch1.addConstraint(Sketcher.Constraint("DistanceY", 47, 3, -1, 1, Q("111.965104 mm")))
sketch1.addConstraint(Sketcher.Constraint("DistanceY", 50, 3, -1, 1, Q("105.050425 mm")))
sketch1.addConstraint(Sketcher.Constraint("DistanceY", 51, 3, -1, 1, Q("98.465072 mm")))
sketch1.addConstraint(Sketcher.Constraint("DistanceY", 57, 3, -1, 1, Q("100.389947 mm")))
sketch1.addConstraint(Sketcher.Constraint("DistanceY", 64, 3, -1, 1, Q("64.889947 mm")))
pad1 = body.newObject("PartDesign::Pad", "Pad")
pad1.Profile = sketch1
pad1.Length = 2.54

doc.recompute()
